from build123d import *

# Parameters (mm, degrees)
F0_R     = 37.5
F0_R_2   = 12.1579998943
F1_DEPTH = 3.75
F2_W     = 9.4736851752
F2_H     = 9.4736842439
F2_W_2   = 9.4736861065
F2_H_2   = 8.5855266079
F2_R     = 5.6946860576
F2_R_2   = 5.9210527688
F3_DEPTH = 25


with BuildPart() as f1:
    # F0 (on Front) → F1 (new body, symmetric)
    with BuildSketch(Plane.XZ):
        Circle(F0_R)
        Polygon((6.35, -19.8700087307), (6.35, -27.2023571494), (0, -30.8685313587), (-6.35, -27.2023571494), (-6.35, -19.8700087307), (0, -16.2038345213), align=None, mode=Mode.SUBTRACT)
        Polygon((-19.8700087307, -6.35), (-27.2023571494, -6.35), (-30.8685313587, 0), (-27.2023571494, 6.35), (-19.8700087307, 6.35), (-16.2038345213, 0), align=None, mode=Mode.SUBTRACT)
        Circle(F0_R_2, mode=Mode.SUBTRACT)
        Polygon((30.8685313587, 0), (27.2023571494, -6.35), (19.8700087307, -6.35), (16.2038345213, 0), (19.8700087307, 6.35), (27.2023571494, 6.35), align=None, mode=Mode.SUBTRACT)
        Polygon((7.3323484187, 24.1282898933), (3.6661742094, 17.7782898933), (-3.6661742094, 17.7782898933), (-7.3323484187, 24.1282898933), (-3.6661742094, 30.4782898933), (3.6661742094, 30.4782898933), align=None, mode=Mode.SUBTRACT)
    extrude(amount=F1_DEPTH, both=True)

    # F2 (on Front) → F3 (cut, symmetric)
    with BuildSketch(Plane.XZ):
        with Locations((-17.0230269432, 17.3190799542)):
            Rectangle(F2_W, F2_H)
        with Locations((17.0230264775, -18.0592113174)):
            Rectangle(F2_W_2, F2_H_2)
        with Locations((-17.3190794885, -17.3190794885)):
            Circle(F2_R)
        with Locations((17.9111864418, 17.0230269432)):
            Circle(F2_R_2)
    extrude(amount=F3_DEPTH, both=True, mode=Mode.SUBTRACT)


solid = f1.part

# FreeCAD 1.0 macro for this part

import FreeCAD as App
import Part
import Sketcher
from FreeCAD import Vector
Q = App.Units.Quantity

doc = App.newDocument("Part")
body = doc.addObject("PartDesign::Body", "Body")

# Sketch on XZ plane
sketch1 = doc.addObject("Sketcher::SketchObject", "Sketch")
body.addObject(sketch1)
sketch1.AttachmentSupport = (doc.XZ_Plane, [""])
sketch1.MapMode = "FlatFace"
sketch1.addGeometry([
    Part.Circle(Vector(0, 0, 0), Vector(0, 0, 1), 38),  # 0
    Part.LineSegment(Vector(0, -16, 0), Vector(6, -20, 0)),  # 1
    Part.LineSegment(Vector(6, -20, 0), Vector(6, -27, 0)),  # 2
    Part.LineSegment(Vector(6, -27, 0), Vector(0, -31, 0)),  # 3
    Part.LineSegment(Vector(0, -31, 0), Vector(-6, -27, 0)),  # 4
    Part.LineSegment(Vector(-6, -27, 0), Vector(-6, -20, 0)),  # 5
    Part.LineSegment(Vector(-6, -20, 0), Vector(0, -16, 0)),  # 6
    Part.LineSegment(Vector(-16, 0, 0), Vector(-20, -6, 0)),  # 7
    Part.LineSegment(Vector(-20, -6, 0), Vector(-27, -6, 0)),  # 8
    Part.LineSegment(Vector(-27, -6, 0), Vector(-31, 0, 0)),  # 9
    Part.LineSegment(Vector(-31, 0, 0), Vector(-27, 6, 0)),  # 10
    Part.LineSegment(Vector(-27, 6, 0), Vector(-20, 6, 0)),  # 11
    Part.LineSegment(Vector(-20, 6, 0), Vector(-16, 0, 0)),  # 12
    Part.Circle(Vector(0, 0, 0), Vector(0, 0, 1), 12),  # 13
    Part.LineSegment(Vector(4, 30, 0), Vector(7, 24, 0)),  # 14
    Part.LineSegment(Vector(7, 24, 0), Vector(4, 18, 0)),  # 15
    Part.LineSegment(Vector(4, 18, 0), Vector(-4, 18, 0)),  # 16
    Part.LineSegment(Vector(-4, 18, 0), Vector(-7, 24, 0)),  # 17
    Part.LineSegment(Vector(-7, 24, 0), Vector(-4, 30, 0)),  # 18
    Part.LineSegment(Vector(-4, 30, 0), Vector(4, 30, 0)),  # 19
    Part.LineSegment(Vector(27, 6, 0), Vector(31, 0, 0)),  # 20
    Part.LineSegment(Vector(31, 0, 0), Vector(27, -6, 0)),  # 21
    Part.LineSegment(Vector(27, -6, 0), Vector(20, -6, 0)),  # 22
    Part.LineSegment(Vector(20, -6, 0), Vector(16, 0, 0)),  # 23
    Part.LineSegment(Vector(16, 0, 0), Vector(20, 6, 0)),  # 24
    Part.LineSegment(Vector(20, 6, 0), Vector(27, 6, 0)),  # 25
], False)
sketch1.addConstraint([
    Sketcher.Constraint("Coincident", 1, 2, 2, 1),
    Sketcher.Constraint("Coincident", 2, 2, 3, 1),
    Sketcher.Constraint("Coincident", 3, 2, 4, 1),
    Sketcher.Constraint("Coincident", 4, 2, 5, 1),
    Sketcher.Constraint("Coincident", 5, 2, 6, 1),
    Sketcher.Constraint("Coincident", 6, 2, 1, 1),
    Sketcher.Constraint("Coincident", 7, 2, 8, 1),
    Sketcher.Constraint("Coincident", 8, 2, 9, 1),
    Sketcher.Constraint("Coincident", 9, 2, 10, 1),
    Sketcher.Constraint("Coincident", 10, 2, 11, 1),
    Sketcher.Constraint("Coincident", 11, 2, 12, 1),
    Sketcher.Constraint("Coincident", 12, 2, 7, 1),
    Sketcher.Constraint("Coincident", 14, 2, 15, 1),
    Sketcher.Constraint("Coincident", 15, 2, 16, 1),
    Sketcher.Constraint("Coincident", 16, 2, 17, 1),
    Sketcher.Constraint("Coincident", 17, 2, 18, 1),
    Sketcher.Constraint("Coincident", 18, 2, 19, 1),
    Sketcher.Constraint("Coincident", 19, 2, 14, 1),
    Sketcher.Constraint("Coincident", 20, 2, 21, 1),
    Sketcher.Constraint("Coincident", 21, 2, 22, 1),
    Sketcher.Constraint("Coincident", 22, 2, 23, 1),
    Sketcher.Constraint("Coincident", 23, 2, 24, 1),
    Sketcher.Constraint("Coincident", 24, 2, 25, 1),
    Sketcher.Constraint("Coincident", 25, 2, 20, 1),
    Sketcher.Constraint("Vertical", 2),
    Sketcher.Constraint("Vertical", 5),
    Sketcher.Constraint("Horizontal", 8),
    Sketcher.Constraint("Horizontal", 11),
    Sketcher.Constraint("Horizontal", 16),
    Sketcher.Constraint("Horizontal", 19),
    Sketcher.Constraint("Horizontal", 22),
    Sketcher.Constraint("Horizontal", 25),
    Sketcher.Constraint("Coincident", 0, 3, -1, 1),
    Sketcher.Constraint("Coincident", 13, 3, -1, 1),
    Sketcher.Constraint("Symmetric", 9, 2, 20, 2, -1, 1),
    Sketcher.Constraint("Symmetric", 10, 2, 21, 2, -1, 1),
    Sketcher.Constraint("Symmetric", 12, 2, 23, 2, -1, 1),
    Sketcher.Constraint("Symmetric", 7, 2, 24, 2, -1, 1),
    Sketcher.Constraint("Symmetric", 2, 2, 4, 2, -2),
    Sketcher.Constraint("Symmetric", 14, 2, 17, 2, -2),
    Sketcher.Constraint("Symmetric", 8, 2, 21, 2, -2),
    Sketcher.Constraint("PointOnObject", 3, 2, -2),
    Sketcher.Constraint("PointOnObject", 6, 2, -2),
    Sketcher.Constraint("PointOnObject", 9, 2, -1),
    Sketcher.Constraint("PointOnObject", 12, 2, -1),
    Sketcher.Constraint("Parallel", 1, 4),
    Sketcher.Constraint("Parallel", 3, 6),
    Sketcher.Constraint("Perpendicular", 4, 7),
    Sketcher.Constraint("Perpendicular", 6, 9),
    Sketcher.Constraint("Parallel", 9, 12),
    Sketcher.Constraint("Parallel", 12, 14),
    Sketcher.Constraint("Parallel", 10, 15),
    Sketcher.Constraint("Parallel", 14, 17),
    Sketcher.Constraint("Parallel", 15, 18),
    Sketcher.Constraint("Parallel", 17, 20),
    Sketcher.Constraint("Parallel", 20, 23),
    Sketcher.Constraint("Vertical", 16, 2, 18, 2),
    Sketcher.Constraint("Equal", 11, 16),
    Sketcher.Constraint("Equal", 25, 2),
    Sketcher.Constraint("Equal", 6, 7),
    Sketcher.Constraint("Equal", 12, 14),
    Sketcher.Constraint("Diameter", 0, 75.0),
    Sketcher.Constraint("Angle", 1, Q("-30 deg")),
    Sketcher.Constraint("Diameter", 13, 24.316),
    Sketcher.Constraint("DistanceX", 4, 2, 2, 2, 12.7),
    Sketcher.Constraint("DistanceX", 8, 2, 8, 1, 7.332348),
    Sketcher.Constraint("DistanceY", 1, 2, -1, 1, 19.870009),
    Sketcher.Constraint("DistanceX", 7, 2, -1, 1, 19.870009),
    Sketcher.Constraint("DistanceY", -1, 1, 14, 2, 24.12829),
])
pad1 = doc.addObject("PartDesign::Pad", "Pad")
body.addObject(pad1)
pad1.Profile = sketch1
pad1.Length = 7.5
pad1.Midplane = True

# Sketch on XZ plane
sketch2 = doc.addObject("Sketcher::SketchObject", "Sketch001")
body.addObject(sketch2)
sketch2.AttachmentSupport = (doc.XZ_Plane, [""])
sketch2.MapMode = "FlatFace"
sketch2.addGeometry([
    Part.LineSegment(Vector(-22, 22, 0), Vector(-22, 13, 0)),  # 0
    Part.LineSegment(Vector(-22, 13, 0), Vector(-12, 13, 0)),  # 1
    Part.LineSegment(Vector(-12, 13, 0), Vector(-12, 22, 0)),  # 2
    Part.LineSegment(Vector(-12, 22, 0), Vector(-22, 22, 0)),  # 3
    Part.LineSegment(Vector(12, -14, 0), Vector(12, -22, 0)),  # 4
    Part.LineSegment(Vector(12, -22, 0), Vector(22, -22, 0)),  # 5
    Part.LineSegment(Vector(22, -22, 0), Vector(22, -14, 0)),  # 6
    Part.LineSegment(Vector(22, -14, 0), Vector(12, -14, 0)),  # 7
    Part.Circle(Vector(-17, -17, 0), Vector(0, 0, 1), 6),  # 8
    Part.Circle(Vector(18, 17, 0), Vector(0, 0, 1), 6),  # 9
], False)
sketch2.addConstraint([
    Sketcher.Constraint("Coincident", 0, 2, 1, 1),
    Sketcher.Constraint("Coincident", 1, 2, 2, 1),
    Sketcher.Constraint("Coincident", 2, 2, 3, 1),
    Sketcher.Constraint("Coincident", 3, 2, 0, 1),
    Sketcher.Constraint("Coincident", 4, 2, 5, 1),
    Sketcher.Constraint("Coincident", 5, 2, 6, 1),
    Sketcher.Constraint("Coincident", 6, 2, 7, 1),
    Sketcher.Constraint("Coincident", 7, 2, 4, 1),
    Sketcher.Constraint("Vertical", 0),
    Sketcher.Constraint("Horizontal", 1),
    Sketcher.Constraint("Vertical", 2),
    Sketcher.Constraint("Horizontal", 3),
    Sketcher.Constraint("Vertical", 4),
    Sketcher.Constraint("Horizontal", 5),
    Sketcher.Constraint("Vertical", 6),
    Sketcher.Constraint("Horizontal", 7),
    Sketcher.Constraint("Equal", 3, 5),
    Sketcher.Constraint("Equal", 7, 0),
    Sketcher.Constraint("Diameter", 8, 11.389372),
    Sketcher.Constraint("Diameter", 9, 11.842106),
    Sketcher.Constraint("DistanceY", 8, 3, 2, 2, 39.375002),
    Sketcher.Constraint("DistanceY", 4, 2, 9, 3, 39.375002),
    Sketcher.Constraint("DistanceX", 1, 1, 1, 2, 9.473685),
    Sketcher.Constraint("DistanceY", 4, 2, 4, 1, 8.585527),
    Sketcher.Constraint("DistanceX", 8, 3, -1, 1, 17.319079),
    Sketcher.Constraint("DistanceY", 8, 3, -1, 1, 17.319079),
    Sketcher.Constraint("DistanceX", 0, 2, -1, 1, 21.75987),
    Sketcher.Constraint("DistanceX", -1, 1, 5, 2, 21.75987),
    Sketcher.Constraint("DistanceY", 6, 2, -1, 1, 13.766448),
    Sketcher.Constraint("DistanceX", 1, 2, 9, 3, 30.197371),
])
pocket1 = doc.addObject("PartDesign::Pocket", "Pocket")
body.addObject(pocket1)
pocket1.Profile = sketch2
pocket1.Length = 50
pocket1.Midplane = True

doc.recompute()
